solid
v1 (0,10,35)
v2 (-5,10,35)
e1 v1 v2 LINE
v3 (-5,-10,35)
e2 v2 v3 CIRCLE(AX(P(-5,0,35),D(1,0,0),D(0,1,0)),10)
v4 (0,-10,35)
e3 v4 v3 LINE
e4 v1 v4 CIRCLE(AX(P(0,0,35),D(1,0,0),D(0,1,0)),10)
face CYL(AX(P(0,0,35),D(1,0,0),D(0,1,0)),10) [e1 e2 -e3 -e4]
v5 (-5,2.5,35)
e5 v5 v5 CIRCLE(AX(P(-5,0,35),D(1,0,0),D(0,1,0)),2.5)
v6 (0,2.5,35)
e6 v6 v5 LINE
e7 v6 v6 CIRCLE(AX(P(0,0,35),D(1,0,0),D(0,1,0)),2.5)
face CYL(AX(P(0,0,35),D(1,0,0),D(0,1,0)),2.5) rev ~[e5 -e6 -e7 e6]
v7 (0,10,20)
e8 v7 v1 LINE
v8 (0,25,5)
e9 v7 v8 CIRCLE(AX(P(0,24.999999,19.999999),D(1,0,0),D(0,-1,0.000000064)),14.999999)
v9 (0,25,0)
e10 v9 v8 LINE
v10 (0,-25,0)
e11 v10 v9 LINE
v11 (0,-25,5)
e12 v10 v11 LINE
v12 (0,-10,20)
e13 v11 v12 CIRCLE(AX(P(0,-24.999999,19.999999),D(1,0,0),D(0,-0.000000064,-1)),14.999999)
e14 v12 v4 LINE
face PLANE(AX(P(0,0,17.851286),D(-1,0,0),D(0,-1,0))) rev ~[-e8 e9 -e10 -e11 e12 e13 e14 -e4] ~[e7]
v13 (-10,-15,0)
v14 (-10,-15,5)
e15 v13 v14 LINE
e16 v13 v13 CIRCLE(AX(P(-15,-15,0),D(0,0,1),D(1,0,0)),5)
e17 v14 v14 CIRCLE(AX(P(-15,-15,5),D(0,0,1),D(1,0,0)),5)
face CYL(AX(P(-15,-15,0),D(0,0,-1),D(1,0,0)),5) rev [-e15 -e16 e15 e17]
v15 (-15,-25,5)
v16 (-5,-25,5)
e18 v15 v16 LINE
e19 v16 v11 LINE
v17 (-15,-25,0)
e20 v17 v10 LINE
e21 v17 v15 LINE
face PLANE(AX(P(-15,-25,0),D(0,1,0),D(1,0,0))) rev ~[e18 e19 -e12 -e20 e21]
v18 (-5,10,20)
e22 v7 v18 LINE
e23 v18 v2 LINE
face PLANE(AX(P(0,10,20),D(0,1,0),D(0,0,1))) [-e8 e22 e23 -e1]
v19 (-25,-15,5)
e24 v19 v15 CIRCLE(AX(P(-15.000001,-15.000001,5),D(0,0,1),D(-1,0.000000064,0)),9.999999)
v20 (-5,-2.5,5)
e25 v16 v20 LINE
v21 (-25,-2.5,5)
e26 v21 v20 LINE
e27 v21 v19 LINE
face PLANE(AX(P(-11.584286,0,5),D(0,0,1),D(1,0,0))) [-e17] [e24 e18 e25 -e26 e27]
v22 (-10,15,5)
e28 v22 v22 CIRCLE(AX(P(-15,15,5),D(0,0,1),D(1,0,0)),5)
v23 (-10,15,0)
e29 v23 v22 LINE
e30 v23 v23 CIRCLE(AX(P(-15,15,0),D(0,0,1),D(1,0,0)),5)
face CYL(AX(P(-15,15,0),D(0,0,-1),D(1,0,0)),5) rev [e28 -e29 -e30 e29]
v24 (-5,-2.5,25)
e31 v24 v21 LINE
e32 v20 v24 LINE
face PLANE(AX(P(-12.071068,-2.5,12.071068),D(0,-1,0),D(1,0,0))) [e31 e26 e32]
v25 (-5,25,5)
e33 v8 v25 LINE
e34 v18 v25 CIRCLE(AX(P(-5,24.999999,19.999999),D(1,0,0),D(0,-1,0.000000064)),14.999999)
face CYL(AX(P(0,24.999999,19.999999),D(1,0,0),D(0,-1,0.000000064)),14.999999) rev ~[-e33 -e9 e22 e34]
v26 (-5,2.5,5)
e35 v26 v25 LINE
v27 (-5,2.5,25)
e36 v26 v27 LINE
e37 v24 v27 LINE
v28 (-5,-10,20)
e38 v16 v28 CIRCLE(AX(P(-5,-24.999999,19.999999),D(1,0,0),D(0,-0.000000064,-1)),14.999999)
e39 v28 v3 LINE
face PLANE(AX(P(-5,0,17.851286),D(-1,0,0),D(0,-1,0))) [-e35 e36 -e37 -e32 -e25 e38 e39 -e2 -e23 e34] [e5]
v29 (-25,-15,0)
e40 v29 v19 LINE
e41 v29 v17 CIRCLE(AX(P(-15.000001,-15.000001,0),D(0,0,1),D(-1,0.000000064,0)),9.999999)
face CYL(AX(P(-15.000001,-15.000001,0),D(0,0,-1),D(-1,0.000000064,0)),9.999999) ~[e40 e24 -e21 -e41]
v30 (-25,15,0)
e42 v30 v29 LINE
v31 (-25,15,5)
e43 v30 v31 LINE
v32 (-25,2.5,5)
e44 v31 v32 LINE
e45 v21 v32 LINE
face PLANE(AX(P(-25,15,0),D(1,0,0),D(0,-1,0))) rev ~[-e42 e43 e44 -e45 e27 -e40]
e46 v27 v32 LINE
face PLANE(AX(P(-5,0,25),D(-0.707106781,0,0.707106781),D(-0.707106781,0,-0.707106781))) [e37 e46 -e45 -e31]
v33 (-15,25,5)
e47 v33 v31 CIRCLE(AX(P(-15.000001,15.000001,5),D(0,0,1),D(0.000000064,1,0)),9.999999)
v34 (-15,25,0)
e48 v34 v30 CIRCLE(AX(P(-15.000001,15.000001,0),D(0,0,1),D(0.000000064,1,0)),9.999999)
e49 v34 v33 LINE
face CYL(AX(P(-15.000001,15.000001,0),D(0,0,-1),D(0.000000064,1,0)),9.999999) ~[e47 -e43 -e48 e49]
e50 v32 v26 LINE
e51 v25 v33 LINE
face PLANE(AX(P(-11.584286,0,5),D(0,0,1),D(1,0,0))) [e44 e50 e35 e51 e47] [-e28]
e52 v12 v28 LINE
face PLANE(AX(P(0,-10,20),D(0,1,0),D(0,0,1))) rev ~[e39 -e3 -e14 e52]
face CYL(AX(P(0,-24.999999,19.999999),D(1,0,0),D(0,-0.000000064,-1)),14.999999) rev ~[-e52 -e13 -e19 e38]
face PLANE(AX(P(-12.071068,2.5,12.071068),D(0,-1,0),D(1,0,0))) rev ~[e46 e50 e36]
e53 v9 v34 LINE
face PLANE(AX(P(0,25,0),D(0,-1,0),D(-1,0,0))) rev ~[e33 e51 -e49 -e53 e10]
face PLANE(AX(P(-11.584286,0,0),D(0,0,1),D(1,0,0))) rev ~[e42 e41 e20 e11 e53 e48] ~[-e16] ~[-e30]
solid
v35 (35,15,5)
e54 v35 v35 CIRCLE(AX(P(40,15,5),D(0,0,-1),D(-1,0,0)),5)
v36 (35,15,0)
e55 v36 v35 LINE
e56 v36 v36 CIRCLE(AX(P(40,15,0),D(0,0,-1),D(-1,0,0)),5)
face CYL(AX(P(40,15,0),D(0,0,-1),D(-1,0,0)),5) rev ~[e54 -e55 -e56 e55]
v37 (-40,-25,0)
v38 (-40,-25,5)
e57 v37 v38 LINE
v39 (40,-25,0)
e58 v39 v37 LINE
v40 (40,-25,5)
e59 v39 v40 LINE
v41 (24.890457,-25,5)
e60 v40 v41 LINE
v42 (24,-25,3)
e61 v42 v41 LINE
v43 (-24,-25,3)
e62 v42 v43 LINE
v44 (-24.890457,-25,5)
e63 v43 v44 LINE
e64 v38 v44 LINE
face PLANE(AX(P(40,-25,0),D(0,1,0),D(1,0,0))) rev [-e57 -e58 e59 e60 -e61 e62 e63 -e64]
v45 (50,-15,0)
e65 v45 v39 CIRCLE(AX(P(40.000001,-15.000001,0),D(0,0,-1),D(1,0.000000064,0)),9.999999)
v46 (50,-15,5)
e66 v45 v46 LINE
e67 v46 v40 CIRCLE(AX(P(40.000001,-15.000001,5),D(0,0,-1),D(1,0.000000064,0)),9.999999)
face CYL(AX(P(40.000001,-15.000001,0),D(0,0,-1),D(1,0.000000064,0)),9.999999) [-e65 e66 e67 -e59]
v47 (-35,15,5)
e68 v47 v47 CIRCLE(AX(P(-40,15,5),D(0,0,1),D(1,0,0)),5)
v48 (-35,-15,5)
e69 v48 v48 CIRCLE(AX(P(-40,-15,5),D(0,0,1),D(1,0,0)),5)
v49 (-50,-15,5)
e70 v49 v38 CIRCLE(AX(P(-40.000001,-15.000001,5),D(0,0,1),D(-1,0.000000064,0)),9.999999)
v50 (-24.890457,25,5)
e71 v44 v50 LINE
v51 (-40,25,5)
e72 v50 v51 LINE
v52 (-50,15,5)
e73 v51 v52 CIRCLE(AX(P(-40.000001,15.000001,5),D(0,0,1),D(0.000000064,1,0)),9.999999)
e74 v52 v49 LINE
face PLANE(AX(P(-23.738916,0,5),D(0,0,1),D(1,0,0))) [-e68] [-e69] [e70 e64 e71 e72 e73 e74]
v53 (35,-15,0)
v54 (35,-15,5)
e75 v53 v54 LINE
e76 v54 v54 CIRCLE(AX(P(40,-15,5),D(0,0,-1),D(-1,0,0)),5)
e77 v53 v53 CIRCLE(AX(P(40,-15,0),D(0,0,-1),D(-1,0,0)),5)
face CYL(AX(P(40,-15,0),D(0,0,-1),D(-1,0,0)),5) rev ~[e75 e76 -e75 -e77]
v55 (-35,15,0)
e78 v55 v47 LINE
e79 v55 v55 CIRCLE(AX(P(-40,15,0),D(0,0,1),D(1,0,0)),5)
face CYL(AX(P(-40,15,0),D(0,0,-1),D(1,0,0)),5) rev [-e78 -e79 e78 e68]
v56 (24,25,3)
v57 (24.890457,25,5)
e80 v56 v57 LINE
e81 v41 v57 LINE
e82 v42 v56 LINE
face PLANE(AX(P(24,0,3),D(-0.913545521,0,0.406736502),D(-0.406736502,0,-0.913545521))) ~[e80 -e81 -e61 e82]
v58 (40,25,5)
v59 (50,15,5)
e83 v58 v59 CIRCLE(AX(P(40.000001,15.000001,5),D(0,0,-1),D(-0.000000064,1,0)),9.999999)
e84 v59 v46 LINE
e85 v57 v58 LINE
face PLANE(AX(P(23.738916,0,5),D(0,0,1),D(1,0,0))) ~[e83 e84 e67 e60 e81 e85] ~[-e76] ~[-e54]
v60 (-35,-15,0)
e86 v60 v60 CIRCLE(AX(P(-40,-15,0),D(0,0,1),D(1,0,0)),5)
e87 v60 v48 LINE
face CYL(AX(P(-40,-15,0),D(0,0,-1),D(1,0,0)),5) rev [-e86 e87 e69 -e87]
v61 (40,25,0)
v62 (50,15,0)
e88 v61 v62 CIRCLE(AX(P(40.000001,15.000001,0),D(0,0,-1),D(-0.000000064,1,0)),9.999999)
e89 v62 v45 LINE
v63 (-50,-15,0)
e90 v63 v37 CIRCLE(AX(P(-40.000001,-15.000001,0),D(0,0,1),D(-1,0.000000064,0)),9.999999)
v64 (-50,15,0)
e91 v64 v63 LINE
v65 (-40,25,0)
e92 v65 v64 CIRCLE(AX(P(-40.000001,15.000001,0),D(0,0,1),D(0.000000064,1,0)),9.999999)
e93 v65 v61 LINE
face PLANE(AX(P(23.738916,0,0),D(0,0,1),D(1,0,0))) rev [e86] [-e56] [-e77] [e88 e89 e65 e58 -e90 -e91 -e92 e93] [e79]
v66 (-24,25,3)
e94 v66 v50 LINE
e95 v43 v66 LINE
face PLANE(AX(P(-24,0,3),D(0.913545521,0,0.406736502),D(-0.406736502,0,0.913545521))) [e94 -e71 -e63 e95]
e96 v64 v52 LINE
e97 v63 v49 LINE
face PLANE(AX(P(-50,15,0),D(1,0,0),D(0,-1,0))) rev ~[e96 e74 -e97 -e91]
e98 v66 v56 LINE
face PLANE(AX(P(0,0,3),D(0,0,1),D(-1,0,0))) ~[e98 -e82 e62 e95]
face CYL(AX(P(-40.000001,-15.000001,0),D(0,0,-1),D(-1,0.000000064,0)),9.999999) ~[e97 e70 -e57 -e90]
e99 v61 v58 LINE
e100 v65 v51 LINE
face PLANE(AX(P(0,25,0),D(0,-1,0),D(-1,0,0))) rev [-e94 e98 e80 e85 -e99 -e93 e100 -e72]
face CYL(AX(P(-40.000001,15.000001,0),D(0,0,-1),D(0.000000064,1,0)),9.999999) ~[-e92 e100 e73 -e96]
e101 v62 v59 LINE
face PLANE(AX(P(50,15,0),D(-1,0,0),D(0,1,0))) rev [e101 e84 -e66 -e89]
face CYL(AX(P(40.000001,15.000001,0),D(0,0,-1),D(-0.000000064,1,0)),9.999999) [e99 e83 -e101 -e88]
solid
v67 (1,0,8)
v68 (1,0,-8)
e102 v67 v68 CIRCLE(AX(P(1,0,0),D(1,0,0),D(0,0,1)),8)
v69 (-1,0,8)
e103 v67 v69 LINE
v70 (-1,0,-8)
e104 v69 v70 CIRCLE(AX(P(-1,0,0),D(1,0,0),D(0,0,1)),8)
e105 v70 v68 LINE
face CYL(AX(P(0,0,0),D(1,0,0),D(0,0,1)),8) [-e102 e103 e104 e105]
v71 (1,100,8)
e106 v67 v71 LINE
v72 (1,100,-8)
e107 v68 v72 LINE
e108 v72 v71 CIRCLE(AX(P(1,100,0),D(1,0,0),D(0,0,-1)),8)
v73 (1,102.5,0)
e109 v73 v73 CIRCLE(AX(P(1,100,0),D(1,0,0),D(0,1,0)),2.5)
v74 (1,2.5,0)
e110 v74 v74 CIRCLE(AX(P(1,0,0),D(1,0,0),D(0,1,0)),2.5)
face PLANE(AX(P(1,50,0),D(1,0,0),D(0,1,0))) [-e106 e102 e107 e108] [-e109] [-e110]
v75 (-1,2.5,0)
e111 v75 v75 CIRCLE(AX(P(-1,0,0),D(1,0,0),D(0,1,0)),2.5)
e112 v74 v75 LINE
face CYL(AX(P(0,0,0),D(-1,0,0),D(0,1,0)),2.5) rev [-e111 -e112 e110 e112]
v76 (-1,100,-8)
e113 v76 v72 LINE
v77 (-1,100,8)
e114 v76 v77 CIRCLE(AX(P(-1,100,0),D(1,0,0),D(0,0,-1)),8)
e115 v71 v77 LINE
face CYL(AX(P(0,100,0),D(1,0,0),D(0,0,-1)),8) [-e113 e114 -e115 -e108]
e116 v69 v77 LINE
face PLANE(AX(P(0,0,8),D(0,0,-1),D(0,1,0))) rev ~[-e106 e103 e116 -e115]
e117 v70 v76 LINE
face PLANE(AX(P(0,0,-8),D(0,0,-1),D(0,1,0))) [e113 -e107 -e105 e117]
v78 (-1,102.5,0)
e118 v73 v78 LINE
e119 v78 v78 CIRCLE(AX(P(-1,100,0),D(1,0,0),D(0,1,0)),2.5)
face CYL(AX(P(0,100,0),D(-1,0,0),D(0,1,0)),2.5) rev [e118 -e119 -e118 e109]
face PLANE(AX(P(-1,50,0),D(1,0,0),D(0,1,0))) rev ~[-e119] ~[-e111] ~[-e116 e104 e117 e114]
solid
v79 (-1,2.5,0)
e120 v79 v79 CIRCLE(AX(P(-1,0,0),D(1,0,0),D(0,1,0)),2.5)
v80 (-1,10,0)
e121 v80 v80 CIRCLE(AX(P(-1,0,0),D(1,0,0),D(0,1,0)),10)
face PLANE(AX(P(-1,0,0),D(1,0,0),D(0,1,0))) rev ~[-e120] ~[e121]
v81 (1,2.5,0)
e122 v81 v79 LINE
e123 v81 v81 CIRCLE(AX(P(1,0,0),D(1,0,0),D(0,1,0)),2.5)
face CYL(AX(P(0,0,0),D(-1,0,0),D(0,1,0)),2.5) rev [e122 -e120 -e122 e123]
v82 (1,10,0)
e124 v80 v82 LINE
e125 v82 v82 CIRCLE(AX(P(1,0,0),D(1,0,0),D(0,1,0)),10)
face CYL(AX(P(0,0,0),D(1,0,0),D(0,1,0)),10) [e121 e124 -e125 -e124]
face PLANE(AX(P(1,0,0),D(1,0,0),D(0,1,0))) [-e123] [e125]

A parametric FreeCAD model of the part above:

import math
import FreeCAD as App
import Part
import Sketcher

V = App.Vector
Q = App.Units.Quantity

doc = App.newDocument("Part")
params = doc.addObject("Spreadsheet::Sheet", "Params")
for row, (alias, value) in enumerate([
    ("sketch1_diameter", "10 mm"),
    ("sketch1_radius", "9.999999 mm"),
    ("sketch1_width", "40 mm"),
    ("sketch1_height", "30 mm"),
    ("pad1_length", "5 mm"),
    ("sketch2_width", "24 mm"),
    ("sketch2_height", "2 mm"),
    ("sketch3_diameter", "10 mm"),
    ("sketch3_radius", "9.999999 mm"),
    ("sketch3_width", "15 mm"),
    ("sketch3_height", "30 mm"),
    ("pad2_length", "5 mm"),
    ("sketch4_diameter", "5 mm"),
    ("sketch4_radius", "14.999999 mm"),
    ("sketch4_radius2", "10 mm"),
    ("sketch4_height", "15 mm"),
    ("pad3_length", "5 mm"),
    ("sketch5_width", "20 mm"),
    ("pad4_length", "5 mm"),
    ("sketch6_diameter", "20 mm"),
    ("sketch6_diameter2", "5 mm"),
    ("pad5_length", "2 mm"),
    ("sketch7_diameter", "5 mm"),
    ("sketch7_radius", "8 mm"),
    ("sketch7_width", "100 mm"),
    ("pad6_length", "2 mm"),
], start=1):
    params.set(f"A{row}", alias)
    params.set(f"B{row}", "=" + value)
    params.setAlias(f"B{row}", alias)

body = doc.addObject("PartDesign::Body", "Body")

# Sketch on XY plane
sketch1 = body.newObject("Sketcher::SketchObject", "Sketch")
sketch1.AttachmentSupport = (doc.getObject("XY_Plane"), [""])
sketch1.MapMode = "FlatFace"
sketch1.addGeometry([
    Part.LineSegment(V(-50, 15, 0), V(-50, -15, 0)),  # 0
    Part.ArcOfCircle(Part.Circle(V(-40, -15, 0), V(0, 0, 1), 10), math.radians(180), math.radians(270)),  # 1
    Part.LineSegment(V(-40, -25, 0), V(0, -25, 0)),  # 2
    Part.LineSegment(V(0, -25, 0), V(0, 25, 0)),  # 3
    Part.LineSegment(V(0, 25, 0), V(-40, 25, 0)),  # 4
    Part.ArcOfCircle(Part.Circle(V(-40, 15, 0), V(0, 0, 1), 10), math.radians(90), math.radians(180)),  # 5
    Part.Circle(V(-40, -15, 0), V(0, 0, 1), 5),  # 6
    Part.Circle(V(-40, 15, 0), V(0, 0, 1), 5),  # 7
], False)
sketch1.addConstraint([
    Sketcher.Constraint("Tangent", 0, 2, 1, 1),
    Sketcher.Constraint("Tangent", 1, 2, 2, 1),
    Sketcher.Constraint("Coincident", 2, 2, 3, 1),
    Sketcher.Constraint("Coincident", 3, 2, 4, 1),
    Sketcher.Constraint("Tangent", 4, 2, 5, 1),
    Sketcher.Constraint("Tangent", 5, 2, 0, 1),
    Sketcher.Constraint("Vertical", 0),
    Sketcher.Constraint("Horizontal", 2),
    Sketcher.Constraint("Vertical", 3),
    Sketcher.Constraint("Horizontal", 4),
    Sketcher.Constraint("Coincident", 6, 3, 1, 3),
    Sketcher.Constraint("Coincident", 7, 3, 5, 3),
    Sketcher.Constraint("Equal", 1, 5),
    Sketcher.Constraint("Equal", 6, 7),
    Sketcher.Constraint("Symmetric", 2, 2, 3, 2, -1, 1),
    Sketcher.Constraint("Diameter", 6, 10.0),
    Sketcher.Constraint("Radius", 1, 9.999999),
    Sketcher.Constraint("DistanceX", 2, 1, 2, 2, 40.0),
    Sketcher.Constraint("DistanceY", 0, 2, 0, 1, 30.0),
])
sketch1.setExpression("Constraints[15]", "Params.sketch1_diameter")
sketch1.setExpression("Constraints[16]", "Params.sketch1_radius")
sketch1.setExpression("Constraints[17]", "Params.sketch1_width")
sketch1.setExpression("Constraints[18]", "Params.sketch1_height")
pad1 = body.newObject("PartDesign::Pad", "Pad")
pad1.Profile = sketch1
pad1.setExpression("Length", "Params.pad1_length")

# Sketch on XZ plane
sketch2 = body.newObject("Sketcher::SketchObject", "Sketch001")
sketch2.AttachmentSupport = (doc.getObject("XZ_Plane"), [""])
sketch2.MapMode = "FlatFace"
sketch2.addGeometry([
    Part.LineSegment(V(-24, 3, 0), V(0, 3, 0)),
    Part.LineSegment(V(0, 3, 0), V(0, 5, 0)),
    Part.LineSegment(V(0, 5, 0), V(-24.9, 5, 0)),
    Part.LineSegment(V(-24.9, 5, 0), V(-24, 3, 0)),
], False)
sketch2.addConstraint([
    Sketcher.Constraint("Coincident", 0, 2, 1, 1),
    Sketcher.Constraint("Coincident", 1, 2, 2, 1),
    Sketcher.Constraint("Coincident", 2, 2, 3, 1),
    Sketcher.Constraint("Coincident", 3, 2, 0, 1),
    Sketcher.Constraint("Horizontal", 0),
    Sketcher.Constraint("Vertical", 1),
    Sketcher.Constraint("Horizontal", 2),
    Sketcher.Constraint("PointOnObject", 0, 2, -2),
    Sketcher.Constraint("DistanceX", 0, 1, 0, 2, 24.0),
    Sketcher.Constraint("DistanceY", 1, 1, 1, 2, 2.0),
    Sketcher.Constraint("Angle", 3, Q("-66.000009 deg")),
    Sketcher.Constraint("DistanceY", -1, 1, 0, 2, 3.0),
])
sketch2.setExpression("Constraints[8]", "Params.sketch2_width")
sketch2.setExpression("Constraints[9]", "Params.sketch2_height")
pocket1 = body.newObject("PartDesign::Pocket", "Pocket")
pocket1.Profile = sketch2
pocket1.Type = "ThroughAll"
pocket1.Midplane = True
body2 = doc.addObject("PartDesign::Body", "Body001")
doc.recompute()

body2.BaseFeature = body
doc.recompute()

mirroring = doc.addObject("Part::Mirroring", "Mirroring")
mirroring.Source = body
mirroring.Base = V(0, 0, 0)
mirroring.Normal = V(1, 0, 0)
body3 = doc.addObject("PartDesign::Body", "Body002")
body3.BaseFeature = mirroring
boolean = body2.newObject("PartDesign::Boolean", "Boolean")
boolean.Type = "Fuse"
boolean.addObjects([body3])
doc.recompute()
body4 = doc.addObject("PartDesign::Body", "Body003")

# Sketch on XY plane
sketch3 = body4.newObject("Sketcher::SketchObject", "Sketch002")
sketch3.AttachmentSupport = (doc.getObject("XY_Plane003"), [""])
sketch3.MapMode = "FlatFace"
sketch3.addGeometry([
    Part.LineSegment(V(0, 25, 0), V(-15, 25, 0)),  # 0
    Part.ArcOfCircle(Part.Circle(V(-15, 15, 0), V(0, 0, 1), 10), math.radians(90), math.radians(180)),  # 1
    Part.LineSegment(V(-25, 15, 0), V(-25, -15, 0)),  # 2
    Part.ArcOfCircle(Part.Circle(V(-15, -15, 0), V(0, 0, 1), 10), math.radians(180), math.radians(270)),  # 3
    Part.LineSegment(V(-15, -25, 0), V(0, -25, 0)),  # 4
    Part.LineSegment(V(0, -25, 0), V(0, 25, 0)),  # 5
    Part.Circle(V(-15, -15, 0), V(0, 0, 1), 5),  # 6
    Part.Circle(V(-15, 15, 0), V(0, 0, 1), 5),  # 7
], False)
sketch3.addConstraint([
    Sketcher.Constraint("Tangent", 0, 2, 1, 1),
    Sketcher.Constraint("Tangent", 1, 2, 2, 1),
    Sketcher.Constraint("Tangent", 2, 2, 3, 1),
    Sketcher.Constraint("Tangent", 3, 2, 4, 1),
    Sketcher.Constraint("Coincident", 4, 2, 5, 1),
    Sketcher.Constraint("Coincident", 5, 2, 0, 1),
    Sketcher.Constraint("Horizontal", 0),
    Sketcher.Constraint("Vertical", 2),
    Sketcher.Constraint("Horizontal", 4),
    Sketcher.Constraint("Vertical", 5),
    Sketcher.Constraint("Coincident", 6, 3, 3, 3),
    Sketcher.Constraint("Coincident", 7, 3, 1, 3),
    Sketcher.Constraint("Equal", 1, 3),
    Sketcher.Constraint("Equal", 6, 7),
    Sketcher.Constraint("Symmetric", 4, 2, 5, 2, -1, 1),
    Sketcher.Constraint("Diameter", 6, 10.0),
    Sketcher.Constraint("Radius", 1, 9.999999),
    Sketcher.Constraint("DistanceX", 0, 2, 0, 1, 15.0),
    Sketcher.Constraint("DistanceY", 2, 2, 2, 1, 30.0),
])
sketch3.setExpression("Constraints[15]", "Params.sketch3_diameter")
sketch3.setExpression("Constraints[16]", "Params.sketch3_radius")
sketch3.setExpression("Constraints[17]", "Params.sketch3_width")
sketch3.setExpression("Constraints[18]", "Params.sketch3_height")
pad2 = body4.newObject("PartDesign::Pad", "Pad001")
pad2.Profile = sketch3
pad2.setExpression("Length", "Params.pad2_length")

# Sketch on YZ plane
sketch4 = body4.newObject("Sketcher::SketchObject", "Sketch003")
sketch4.AttachmentSupport = (doc.getObject("YZ_Plane003"), [""])
sketch4.MapMode = "FlatFace"
sketch4.addGeometry([
    Part.ArcOfCircle(Part.Circle(V(-25, 20, 0), V(0, 0, 1), 15), math.radians(-90), math.radians(0)),  # 0
    Part.LineSegment(V(-25, 5, 0), V(25, 5, 0)),  # 1
    Part.ArcOfCircle(Part.Circle(V(25, 20, 0), V(0, 0, 1), 15), math.radians(180), math.radians(270)),  # 2
    Part.LineSegment(V(10, 20, 0), V(10, 35, 0)),  # 3
    Part.ArcOfCircle(Part.Circle(V(0, 35, 0), V(0, 0, 1), 10), math.radians(0), math.radians(180)),  # 4
    Part.LineSegment(V(-10, 35, 0), V(-10, 20, 0)),  # 5
    Part.Circle(V(0, 35, 0), V(0, 0, 1), 2.5),  # 6
], False)
sketch4.addConstraint([
    Sketcher.Constraint("Tangent", 0, 1, 1, 1),
    Sketcher.Constraint("Tangent", 1, 2, 2, 2),
    Sketcher.Constraint("Tangent", 2, 1, 3, 1),
    Sketcher.Constraint("Tangent", 3, 2, 4, 1),
    Sketcher.Constraint("Tangent", 4, 2, 5, 1),
    Sketcher.Constraint("Tangent", 5, 2, 0, 2),
    Sketcher.Constraint("Horizontal", 1),
    Sketcher.Constraint("Vertical", 3),
    Sketcher.Constraint("Vertical", 5),
    Sketcher.Constraint("Coincident", 6, 3, 4, 3),
    Sketcher.Constraint("Equal", 0, 2),
    Sketcher.Constraint("PointOnObject", 4, 3, -2),
    Sketcher.Constraint("Diameter", 6, 5.0),
    Sketcher.Constraint("Radius", 0, 14.999999),
    Sketcher.Constraint("Radius", 4, 10.0),
    Sketcher.Constraint("DistanceY", 3, 1, 3, 2, 15.0),
    Sketcher.Constraint("DistanceY", -1, 1, 0, 3, 19.999999),
])
sketch4.setExpression("Constraints[12]", "Params.sketch4_diameter")
sketch4.setExpression("Constraints[13]", "Params.sketch4_radius")
sketch4.setExpression("Constraints[14]", "Params.sketch4_radius2")
sketch4.setExpression("Constraints[15]", "Params.sketch4_height")
pad3 = body4.newObject("PartDesign::Pad", "Pad002")
pad3.Profile = sketch4
pad3.setExpression("Length", "Params.pad3_length")
pad3.Reversed = True

# Sketch on XZ plane
sketch5 = body4.newObject("Sketcher::SketchObject", "Sketch004")
sketch5.AttachmentSupport = (doc.getObject("XZ_Plane003"), [""])
sketch5.MapMode = "FlatFace"
sketch5.addGeometry([
    Part.LineSegment(V(-25, 5, 0), V(-5, 5, 0)),
    Part.LineSegment(V(-5, 5, 0), V(-5, 25, 0)),
    Part.LineSegment(V(-5, 25, 0), V(-25, 5, 0)),
], False)
sketch5.addConstraint([
    Sketcher.Constraint("Coincident", 0, 2, 1, 1),
    Sketcher.Constraint("Coincident", 1, 2, 2, 1),
    Sketcher.Constraint("Coincident", 2, 2, 0, 1),
    Sketcher.Constraint("Horizontal", 0),
    Sketcher.Constraint("Vertical", 1),
    Sketcher.Constraint("Equal", 0, 1),
    Sketcher.Constraint("DistanceX", 0, 1, 0, 2, 20.0),
    Sketcher.Constraint("DistanceX", 0, 2, -1, 1, 5.0),
    Sketcher.Constraint("DistanceY", -1, 1, 0, 2, 5.0),
])
sketch5.setExpression("Constraints[6]", "Params.sketch5_width")
pad4 = body4.newObject("PartDesign::Pad", "Pad003")
pad4.Profile = sketch5
pad4.setExpression("Length", "Params.pad4_length")
pad4.Midplane = True
body5 = doc.addObject("PartDesign::Body", "Body004")

# Sketch on YZ plane
sketch6 = body5.newObject("Sketcher::SketchObject", "Sketch005")
sketch6.AttachmentSupport = (doc.getObject("YZ_Plane004"), [""])
sketch6.MapMode = "FlatFace"
sketch6.addGeometry([
    Part.Circle(V(0, 0, 0), V(0, 0, 1), 10),
    Part.Circle(V(0, 0, 0), V(0, 0, 1), 2.5),
], False)
sketch6.addConstraint([
    Sketcher.Constraint("Coincident", 0, 3, -1, 1),
    Sketcher.Constraint("Coincident", 1, 3, -1, 1),
    Sketcher.Constraint("Diameter", 0, 20.0),
    Sketcher.Constraint("Diameter", 1, 5.0),
])
sketch6.setExpression("Constraints[2]", "Params.sketch6_diameter")
sketch6.setExpression("Constraints[3]", "Params.sketch6_diameter2")
pad5 = body5.newObject("PartDesign::Pad", "Pad004")
pad5.Profile = sketch6
pad5.setExpression("Length", "Params.pad5_length")
pad5.Midplane = True
body6 = doc.addObject("PartDesign::Body", "Body005")

# Sketch on YZ plane
sketch7 = body6.newObject("Sketcher::SketchObject", "Sketch006")
sketch7.AttachmentSupport = (doc.getObject("YZ_Plane005"), [""])
sketch7.MapMode = "FlatFace"
sketch7.addGeometry([
    Part.ArcOfCircle(Part.Circle(V(0, 0, 0), V(0, 0, 1), 8), math.radians(90), math.radians(270)),  # 0
    Part.LineSegment(V(0, -8, 0), V(100, -8, 0)),  # 1
    Part.ArcOfCircle(Part.Circle(V(100, 0, 0), V(0, 0, 1), 8), math.radians(-90), math.radians(90)),  # 2
    Part.LineSegment(V(100, 8, 0), V(0, 8, 0)),  # 3
    Part.Circle(V(0, 0, 0), V(0, 0, 1), 2.5),  # 4
    Part.Circle(V(100, 0, 0), V(0, 0, 1), 2.5),  # 5
], False)
sketch7.addConstraint([
    Sketcher.Constraint("Tangent", 0, 2, 1, 1),
    Sketcher.Constraint("Tangent", 1, 2, 2, 1),
    Sketcher.Constraint("Tangent", 2, 2, 3, 1),
    Sketcher.Constraint("Tangent", 3, 2, 0, 1),
    Sketcher.Constraint("Horizontal", 1),
    Sketcher.Constraint("Horizontal", 3),
    Sketcher.Constraint("Coincident", 0, 3, -1, 1),
    Sketcher.Constraint("Coincident", 4, 3, -1, 1),
    Sketcher.Constraint("Coincident", 5, 3, 2, 3),
    Sketcher.Constraint("Equal", 4, 5),
    Sketcher.Constraint("Diameter", 4, 5.0),
    Sketcher.Constraint("Radius", 0, 8.0),
    Sketcher.Constraint("DistanceX", 1, 1, 1, 2, 100.0),
])
sketch7.setExpression("Constraints[10]", "Params.sketch7_diameter")
sketch7.setExpression("Constraints[11]", "Params.sketch7_radius")
sketch7.setExpression("Constraints[12]", "Params.sketch7_width")
pad6 = body6.newObject("PartDesign::Pad", "Pad005")
pad6.Profile = sketch7
pad6.setExpression("Length", "Params.pad6_length")
pad6.Midplane = True
mirroring.Visibility = False

doc.recompute()
